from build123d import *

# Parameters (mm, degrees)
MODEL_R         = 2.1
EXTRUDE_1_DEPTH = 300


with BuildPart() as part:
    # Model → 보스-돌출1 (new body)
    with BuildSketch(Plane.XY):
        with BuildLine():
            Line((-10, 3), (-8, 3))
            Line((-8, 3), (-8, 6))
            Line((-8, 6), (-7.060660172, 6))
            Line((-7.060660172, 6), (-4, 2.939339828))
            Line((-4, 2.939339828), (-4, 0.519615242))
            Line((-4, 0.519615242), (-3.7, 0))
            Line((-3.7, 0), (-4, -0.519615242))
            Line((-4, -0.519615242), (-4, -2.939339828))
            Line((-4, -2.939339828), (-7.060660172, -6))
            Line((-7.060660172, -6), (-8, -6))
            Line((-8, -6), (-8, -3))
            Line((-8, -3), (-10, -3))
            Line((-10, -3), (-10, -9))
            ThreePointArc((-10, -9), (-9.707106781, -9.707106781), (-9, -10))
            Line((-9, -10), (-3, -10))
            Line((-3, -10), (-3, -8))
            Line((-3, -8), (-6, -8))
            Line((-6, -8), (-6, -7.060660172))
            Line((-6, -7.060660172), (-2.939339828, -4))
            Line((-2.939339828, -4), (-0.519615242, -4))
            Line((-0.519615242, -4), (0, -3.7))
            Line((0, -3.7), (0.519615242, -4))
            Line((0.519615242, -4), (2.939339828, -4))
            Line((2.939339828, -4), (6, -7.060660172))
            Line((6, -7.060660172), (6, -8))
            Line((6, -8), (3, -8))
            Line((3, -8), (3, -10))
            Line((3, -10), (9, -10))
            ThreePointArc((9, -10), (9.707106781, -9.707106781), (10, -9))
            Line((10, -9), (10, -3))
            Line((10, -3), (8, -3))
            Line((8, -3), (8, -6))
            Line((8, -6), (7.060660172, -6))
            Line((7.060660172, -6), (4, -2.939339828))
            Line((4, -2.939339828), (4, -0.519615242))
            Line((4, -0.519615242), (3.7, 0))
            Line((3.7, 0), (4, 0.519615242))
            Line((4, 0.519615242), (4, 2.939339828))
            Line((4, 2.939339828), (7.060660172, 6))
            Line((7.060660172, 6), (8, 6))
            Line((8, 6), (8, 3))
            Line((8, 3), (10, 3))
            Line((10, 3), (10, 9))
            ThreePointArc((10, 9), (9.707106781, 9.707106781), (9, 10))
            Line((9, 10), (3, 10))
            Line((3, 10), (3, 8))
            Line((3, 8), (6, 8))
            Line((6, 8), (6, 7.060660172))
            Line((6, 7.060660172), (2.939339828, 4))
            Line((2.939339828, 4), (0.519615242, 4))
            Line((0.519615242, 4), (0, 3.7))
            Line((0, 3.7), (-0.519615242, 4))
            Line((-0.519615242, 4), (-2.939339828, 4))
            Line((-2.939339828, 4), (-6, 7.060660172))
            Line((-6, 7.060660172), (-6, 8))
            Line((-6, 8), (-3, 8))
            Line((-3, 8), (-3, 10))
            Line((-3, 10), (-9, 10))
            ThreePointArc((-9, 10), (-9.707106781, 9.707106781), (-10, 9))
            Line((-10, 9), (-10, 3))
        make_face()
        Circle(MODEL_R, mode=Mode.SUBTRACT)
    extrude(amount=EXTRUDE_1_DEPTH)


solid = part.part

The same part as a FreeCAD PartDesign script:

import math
import FreeCAD as App
import Part
import Sketcher
Q = App.Units.Quantity

doc = App.newDocument("Part")
body = doc.addObject("PartDesign::Body", "Body")

# Sketch on XY plane
sketch1 = body.newObject("Sketcher::SketchObject", "Sketch")
sketch1.AttachmentSupport = (doc.getObject("XY_Plane"), [""])
sketch1.MapMode = "FlatFace"
sketch1.addGeometry(Part.LineSegment(App.Vector(-10, 3, 0), App.Vector(-8, 3, 0)), False)
sketch1.addGeometry(Part.LineSegment(App.Vector(-8, 3, 0), App.Vector(-8, 6, 0)), False)
sketch1.addGeometry(Part.LineSegment(App.Vector(-8, 6, 0), App.Vector(-7.1, 6, 0)), False)
sketch1.addGeometry(Part.LineSegment(App.Vector(-7.1, 6, 0), App.Vector(-4, 2.9, 0)), False)
sketch1.addGeometry(Part.LineSegment(App.Vector(-4, 2.9, 0), App.Vector(-4, 0.5, 0)), False)
sketch1.addGeometry(Part.LineSegment(App.Vector(-4, 0.5, 0), App.Vector(-3.7, 0, 0)), False)
sketch1.addGeometry(Part.LineSegment(App.Vector(-3.7, 0, 0), App.Vector(-4, -0.5, 0)), False)
sketch1.addGeometry(Part.LineSegment(App.Vector(-4, -0.5, 0), App.Vector(-4, -2.9, 0)), False)
sketch1.addGeometry(Part.LineSegment(App.Vector(-4, -2.9, 0), App.Vector(-7.1, -6, 0)), False)
sketch1.addGeometry(Part.LineSegment(App.Vector(-7.1, -6, 0), App.Vector(-8, -6, 0)), False)
sketch1.addGeometry(Part.LineSegment(App.Vector(-8, -6, 0), App.Vector(-8, -3, 0)), False)
sketch1.addGeometry(Part.LineSegment(App.Vector(-8, -3, 0), App.Vector(-10, -3, 0)), False)
sketch1.addGeometry(Part.LineSegment(App.Vector(-10, -3, 0), App.Vector(-10, -9, 0)), False)
sketch1.addGeometry(Part.ArcOfCircle(Part.Circle(App.Vector(-9, -9, 0), App.Vector(0, 0, 1), 1), math.radians(-180), math.radians(-90)), False)
sketch1.addGeometry(Part.LineSegment(App.Vector(-9, -10, 0), App.Vector(-3, -10, 0)), False)
sketch1.addGeometry(Part.LineSegment(App.Vector(-3, -10, 0), App.Vector(-3, -8, 0)), False)
sketch1.addGeometry(Part.LineSegment(App.Vector(-3, -8, 0), App.Vector(-6, -8, 0)), False)
sketch1.addGeometry(Part.LineSegment(App.Vector(-6, -8, 0), App.Vector(-6, -7.1, 0)), False)
sketch1.addGeometry(Part.LineSegment(App.Vector(-6, -7.1, 0), App.Vector(-2.9, -4, 0)), False)
sketch1.addGeometry(Part.LineSegment(App.Vector(-2.9, -4, 0), App.Vector(-0.5, -4, 0)), False)
sketch1.addGeometry(Part.LineSegment(App.Vector(-0.5, -4, 0), App.Vector(0, -3.7, 0)), False)
sketch1.addGeometry(Part.LineSegment(App.Vector(0, -3.7, 0), App.Vector(0.5, -4, 0)), False)
sketch1.addGeometry(Part.LineSegment(App.Vector(0.5, -4, 0), App.Vector(2.9, -4, 0)), False)
sketch1.addGeometry(Part.LineSegment(App.Vector(2.9, -4, 0), App.Vector(6, -7.1, 0)), False)
sketch1.addGeometry(Part.LineSegment(App.Vector(6, -7.1, 0), App.Vector(6, -8, 0)), False)
sketch1.addGeometry(Part.LineSegment(App.Vector(6, -8, 0), App.Vector(3, -8, 0)), False)
sketch1.addGeometry(Part.LineSegment(App.Vector(3, -8, 0), App.Vector(3, -10, 0)), False)
sketch1.addGeometry(Part.LineSegment(App.Vector(3, -10, 0), App.Vector(9, -10, 0)), False)
sketch1.addGeometry(Part.ArcOfCircle(Part.Circle(App.Vector(9, -9, 0), App.Vector(0, 0, 1), 1), math.radians(-90), math.radians(0)), False)
sketch1.addGeometry(Part.LineSegment(App.Vector(10, -9, 0), App.Vector(10, -3, 0)), False)
sketch1.addGeometry(Part.LineSegment(App.Vector(10, -3, 0), App.Vector(8, -3, 0)), False)
sketch1.addGeometry(Part.LineSegment(App.Vector(8, -3, 0), App.Vector(8, -6, 0)), False)
sketch1.addGeometry(Part.LineSegment(App.Vector(8, -6, 0), App.Vector(7.1, -6, 0)), False)
sketch1.addGeometry(Part.LineSegment(App.Vector(7.1, -6, 0), App.Vector(4, -2.9, 0)), False)
sketch1.addGeometry(Part.LineSegment(App.Vector(4, -2.9, 0), App.Vector(4, -0.5, 0)), False)
sketch1.addGeometry(Part.LineSegment(App.Vector(4, -0.5, 0), App.Vector(3.7, 0, 0)), False)
sketch1.addGeometry(Part.LineSegment(App.Vector(3.7, 0, 0), App.Vector(4, 0.5, 0)), False)
sketch1.addGeometry(Part.LineSegment(App.Vector(4, 0.5, 0), App.Vector(4, 2.9, 0)), False)
sketch1.addGeometry(Part.LineSegment(App.Vector(4, 2.9, 0), App.Vector(7.1, 6, 0)), False)
sketch1.addGeometry(Part.LineSegment(App.Vector(7.1, 6, 0), App.Vector(8, 6, 0)), False)
sketch1.addGeometry(Part.LineSegment(App.Vector(8, 6, 0), App.Vector(8, 3, 0)), False)
sketch1.addGeometry(Part.LineSegment(App.Vector(8, 3, 0), App.Vector(10, 3, 0)), False)
sketch1.addGeometry(Part.LineSegment(App.Vector(10, 3, 0), App.Vector(10, 9, 0)), False)
sketch1.addGeometry(Part.ArcOfCircle(Part.Circle(App.Vector(9, 9, 0), App.Vector(0, 0, 1), 1), math.radians(0), math.radians(90)), False)
sketch1.addGeometry(Part.LineSegment(App.Vector(9, 10, 0), App.Vector(3, 10, 0)), False)
sketch1.addGeometry(Part.LineSegment(App.Vector(3, 10, 0), App.Vector(3, 8, 0)), False)
sketch1.addGeometry(Part.LineSegment(App.Vector(3, 8, 0), App.Vector(6, 8, 0)), False)
sketch1.addGeometry(Part.LineSegment(App.Vector(6, 8, 0), App.Vector(6, 7.1, 0)), False)
sketch1.addGeometry(Part.LineSegment(App.Vector(6, 7.1, 0), App.Vector(2.9, 4, 0)), False)
sketch1.addGeometry(Part.LineSegment(App.Vector(2.9, 4, 0), App.Vector(0.5, 4, 0)), False)
sketch1.addGeometry(Part.LineSegment(App.Vector(0.5, 4, 0), App.Vector(0, 3.7, 0)), False)
sketch1.addGeometry(Part.LineSegment(App.Vector(0, 3.7, 0), App.Vector(-0.5, 4, 0)), False)
sketch1.addGeometry(Part.LineSegment(App.Vector(-0.5, 4, 0), App.Vector(-2.9, 4, 0)), False)
sketch1.addGeometry(Part.LineSegment(App.Vector(-2.9, 4, 0), App.Vector(-6, 7.1, 0)), False)
sketch1.addGeometry(Part.LineSegment(App.Vector(-6, 7.1, 0), App.Vector(-6, 8, 0)), False)
sketch1.addGeometry(Part.LineSegment(App.Vector(-6, 8, 0), App.Vector(-3, 8, 0)), False)
sketch1.addGeometry(Part.LineSegment(App.Vector(-3, 8, 0), App.Vector(-3, 10, 0)), False)
sketch1.addGeometry(Part.LineSegment(App.Vector(-3, 10, 0), App.Vector(-9, 10, 0)), False)
sketch1.addGeometry(Part.ArcOfCircle(Part.Circle(App.Vector(-9, 9, 0), App.Vector(0, 0, 1), 1), math.radians(90), math.radians(180)), False)
sketch1.addGeometry(Part.LineSegment(App.Vector(-10, 9, 0), App.Vector(-10, 3, 0)), False)
sketch1.addGeometry(Part.Circle(App.Vector(0, 0, 0), App.Vector(0, 0, 1), 2.1), False)
sketch1.addConstraint(Sketcher.Constraint("Coincident", 0, 2, 1, 1))
sketch1.addConstraint(Sketcher.Constraint("Coincident", 1, 2, 2, 1))
sketch1.addConstraint(Sketcher.Constraint("Coincident", 2, 2, 3, 1))
sketch1.addConstraint(Sketcher.Constraint("Coincident", 3, 2, 4, 1))
sketch1.addConstraint(Sketcher.Constraint("Coincident", 4, 2, 5, 1))
sketch1.addConstraint(Sketcher.Constraint("Coincident", 5, 2, 6, 1))
sketch1.addConstraint(Sketcher.Constraint("Coincident", 6, 2, 7, 1))
sketch1.addConstraint(Sketcher.Constraint("Coincident", 7, 2, 8, 1))
sketch1.addConstraint(Sketcher.Constraint("Coincident", 8, 2, 9, 1))
sketch1.addConstraint(Sketcher.Constraint("Coincident", 9, 2, 10, 1))
sketch1.addConstraint(Sketcher.Constraint("Coincident", 10, 2, 11, 1))
sketch1.addConstraint(Sketcher.Constraint("Coincident", 11, 2, 12, 1))
sketch1.addConstraint(Sketcher.Constraint("Tangent", 12, 2, 13, 1))
sketch1.addConstraint(Sketcher.Constraint("Tangent", 13, 2, 14, 1))
sketch1.addConstraint(Sketcher.Constraint("Coincident", 14, 2, 15, 1))
sketch1.addConstraint(Sketcher.Constraint("Coincident", 15, 2, 16, 1))
sketch1.addConstraint(Sketcher.Constraint("Coincident", 16, 2, 17, 1))
sketch1.addConstraint(Sketcher.Constraint("Coincident", 17, 2, 18, 1))
sketch1.addConstraint(Sketcher.Constraint("Coincident", 18, 2, 19, 1))
sketch1.addConstraint(Sketcher.Constraint("Coincident", 19, 2, 20, 1))
sketch1.addConstraint(Sketcher.Constraint("Coincident", 20, 2, 21, 1))
sketch1.addConstraint(Sketcher.Constraint("Coincident", 21, 2, 22, 1))
sketch1.addConstraint(Sketcher.Constraint("Coincident", 22, 2, 23, 1))
sketch1.addConstraint(Sketcher.Constraint("Coincident", 23, 2, 24, 1))
sketch1.addConstraint(Sketcher.Constraint("Coincident", 24, 2, 25, 1))
sketch1.addConstraint(Sketcher.Constraint("Coincident", 25, 2, 26, 1))
sketch1.addConstraint(Sketcher.Constraint("Coincident", 26, 2, 27, 1))
sketch1.addConstraint(Sketcher.Constraint("Tangent", 27, 2, 28, 1))
sketch1.addConstraint(Sketcher.Constraint("Tangent", 28, 2, 29, 1))
sketch1.addConstraint(Sketcher.Constraint("Coincident", 29, 2, 30, 1))
sketch1.addConstraint(Sketcher.Constraint("Coincident", 30, 2, 31, 1))
sketch1.addConstraint(Sketcher.Constraint("Coincident", 31, 2, 32, 1))
sketch1.addConstraint(Sketcher.Constraint("Coincident", 32, 2, 33, 1))
sketch1.addConstraint(Sketcher.Constraint("Coincident", 33, 2, 34, 1))
sketch1.addConstraint(Sketcher.Constraint("Coincident", 34, 2, 35, 1))
sketch1.addConstraint(Sketcher.Constraint("Coincident", 35, 2, 36, 1))
sketch1.addConstraint(Sketcher.Constraint("Coincident", 36, 2, 37, 1))
sketch1.addConstraint(Sketcher.Constraint("Coincident", 37, 2, 38, 1))
sketch1.addConstraint(Sketcher.Constraint("Coincident", 38, 2, 39, 1))
sketch1.addConstraint(Sketcher.Constraint("Coincident", 39, 2, 40, 1))
sketch1.addConstraint(Sketcher.Constraint("Coincident", 40, 2, 41, 1))
sketch1.addConstraint(Sketcher.Constraint("Coincident", 41, 2, 42, 1))
sketch1.addConstraint(Sketcher.Constraint("Tangent", 42, 2, 43, 1))
sketch1.addConstraint(Sketcher.Constraint("Tangent", 43, 2, 44, 1))
sketch1.addConstraint(Sketcher.Constraint("Coincident", 44, 2, 45, 1))
sketch1.addConstraint(Sketcher.Constraint("Coincident", 45, 2, 46, 1))
sketch1.addConstraint(Sketcher.Constraint("Coincident", 46, 2, 47, 1))
sketch1.addConstraint(Sketcher.Constraint("Coincident", 47, 2, 48, 1))
sketch1.addConstraint(Sketcher.Constraint("Coincident", 48, 2, 49, 1))
sketch1.addConstraint(Sketcher.Constraint("Coincident", 49, 2, 50, 1))
sketch1.addConstraint(Sketcher.Constraint("Coincident", 50, 2, 51, 1))
sketch1.addConstraint(Sketcher.Constraint("Coincident", 51, 2, 52, 1))
sketch1.addConstraint(Sketcher.Constraint("Coincident", 52, 2, 53, 1))
sketch1.addConstraint(Sketcher.Constraint("Coincident", 53, 2, 54, 1))
sketch1.addConstraint(Sketcher.Constraint("Coincident", 54, 2, 55, 1))
sketch1.addConstraint(Sketcher.Constraint("Coincident", 55, 2, 56, 1))
sketch1.addConstraint(Sketcher.Constraint("Coincident", 56, 2, 57, 1))
sketch1.addConstraint(Sketcher.Constraint("Tangent", 57, 2, 58, 1))
sketch1.addConstraint(Sketcher.Constraint("Tangent", 58, 2, 59, 1))
sketch1.addConstraint(Sketcher.Constraint("Coincident", 59, 2, 0, 1))
sketch1.addConstraint(Sketcher.Constraint("Horizontal", 0))
sketch1.addConstraint(Sketcher.Constraint("Vertical", 1))
sketch1.addConstraint(Sketcher.Constraint("Horizontal", 2))
sketch1.addConstraint(Sketcher.Constraint("Vertical", 4))
sketch1.addConstraint(Sketcher.Constraint("Vertical", 7))
sketch1.addConstraint(Sketcher.Constraint("Horizontal", 9))
sketch1.addConstraint(Sketcher.Constraint("Vertical", 10))
sketch1.addConstraint(Sketcher.Constraint("Horizontal", 11))
sketch1.addConstraint(Sketcher.Constraint("Vertical", 12))
sketch1.addConstraint(Sketcher.Constraint("Horizontal", 14))
sketch1.addConstraint(Sketcher.Constraint("Vertical", 15))
sketch1.addConstraint(Sketcher.Constraint("Horizontal", 16))
sketch1.addConstraint(Sketcher.Constraint("Vertical", 17))
sketch1.addConstraint(Sketcher.Constraint("Horizontal", 19))
sketch1.addConstraint(Sketcher.Constraint("Horizontal", 22))
sketch1.addConstraint(Sketcher.Constraint("Vertical", 24))
sketch1.addConstraint(Sketcher.Constraint("Horizontal", 25))
sketch1.addConstraint(Sketcher.Constraint("Vertical", 26))
sketch1.addConstraint(Sketcher.Constraint("Horizontal", 27))
sketch1.addConstraint(Sketcher.Constraint("Vertical", 29))
sketch1.addConstraint(Sketcher.Constraint("Horizontal", 30))
sketch1.addConstraint(Sketcher.Constraint("Vertical", 31))
sketch1.addConstraint(Sketcher.Constraint("Horizontal", 32))
sketch1.addConstraint(Sketcher.Constraint("Vertical", 34))
sketch1.addConstraint(Sketcher.Constraint("Vertical", 37))
sketch1.addConstraint(Sketcher.Constraint("Horizontal", 39))
sketch1.addConstraint(Sketcher.Constraint("Vertical", 40))
sketch1.addConstraint(Sketcher.Constraint("Horizontal", 41))
sketch1.addConstraint(Sketcher.Constraint("Vertical", 42))
sketch1.addConstraint(Sketcher.Constraint("Horizontal", 44))
sketch1.addConstraint(Sketcher.Constraint("Vertical", 45))
sketch1.addConstraint(Sketcher.Constraint("Horizontal", 46))
sketch1.addConstraint(Sketcher.Constraint("Vertical", 47))
sketch1.addConstraint(Sketcher.Constraint("Horizontal", 49))
sketch1.addConstraint(Sketcher.Constraint("Horizontal", 52))
sketch1.addConstraint(Sketcher.Constraint("Vertical", 54))
sketch1.addConstraint(Sketcher.Constraint("Horizontal", 55))
sketch1.addConstraint(Sketcher.Constraint("Vertical", 56))
sketch1.addConstraint(Sketcher.Constraint("Horizontal", 57))
sketch1.addConstraint(Sketcher.Constraint("Vertical", 59))
sketch1.addConstraint(Sketcher.Constraint("Coincident", 60, 3, -1, 1))
sketch1.addConstraint(Sketcher.Constraint("Equal", 13, 28))
sketch1.addConstraint(Sketcher.Constraint("Equal", 28, 43))
sketch1.addConstraint(Sketcher.Constraint("Equal", 43, 58))
sketch1.addConstraint(Sketcher.Constraint("Symmetric", 13, 3, 43, 3, -1, 1))
sketch1.addConstraint(Sketcher.Constraint("Symmetric", 28, 3, 58, 3, -1, 1))
sketch1.addConstraint(Sketcher.Constraint("Symmetric", 0, 2, 30, 2, -1, 1))
sketch1.addConstraint(Sketcher.Constraint("Symmetric", 2, 2, 32, 2, -1, 1))
sketch1.addConstraint(Sketcher.Constraint("Symmetric", 3, 2, 33, 2, -1, 1))
sketch1.addConstraint(Sketcher.Constraint("Symmetric", 5, 2, 35, 2, -1, 1))
sketch1.addConstraint(Sketcher.Constraint("Symmetric", 6, 2, 36, 2, -1, 1))
sketch1.addConstraint(Sketcher.Constraint("Symmetric", 8, 2, 38, 2, -1, 1))
sketch1.addConstraint(Sketcher.Constraint("Symmetric", 10, 2, 40, 2, -1, 1))
sketch1.addConstraint(Sketcher.Constraint("Symmetric", 15, 2, 45, 2, -1, 1))
sketch1.addConstraint(Sketcher.Constraint("Symmetric", 17, 2, 47, 2, -1, 1))
sketch1.addConstraint(Sketcher.Constraint("Symmetric", 18, 2, 48, 2, -1, 1))
sketch1.addConstraint(Sketcher.Constraint("Symmetric", 20, 2, 50, 2, -1, 1))
sketch1.addConstraint(Sketcher.Constraint("Symmetric", 21, 2, 51, 2, -1, 1))
sketch1.addConstraint(Sketcher.Constraint("Symmetric", 23, 2, 53, 2, -1, 1))
sketch1.addConstraint(Sketcher.Constraint("Symmetric", 25, 2, 55, 2, -1, 1))
sketch1.addConstraint(Sketcher.Constraint("Symmetric", 13, 3, 28, 3, -2))
sketch1.addConstraint(Sketcher.Constraint("Symmetric", 19, 2, 21, 2, -2))
sketch1.addConstraint(Sketcher.Constraint("Symmetric", 17, 2, 23, 2, -2))
sketch1.addConstraint(Sketcher.Constraint("Symmetric", 15, 2, 25, 2, -2))
sketch1.addConstraint(Sketcher.Constraint("Symmetric", 10, 2, 30, 2, -2))
sketch1.addConstraint(Sketcher.Constraint("Symmetric", 8, 2, 32, 2, -2))
sketch1.addConstraint(Sketcher.Constraint("Symmetric", 7, 2, 33, 2, -2))
sketch1.addConstraint(Sketcher.Constraint("PointOnObject", 5, 2, -1))
sketch1.addConstraint(Sketcher.Constraint("PointOnObject", 20, 2, -2))
sketch1.addConstraint(Sketcher.Constraint("Perpendicular", 3, 8))
sketch1.addConstraint(Sketcher.Constraint("Parallel", 8, 18))
sketch1.addConstraint(Sketcher.Constraint("Perpendicular", 5, 20))
sketch1.addConstraint(Sketcher.Constraint("Perpendicular", 6, 21))
sketch1.addConstraint(Sketcher.Constraint("Perpendicular", 18, 23))
sketch1.addConstraint(Sketcher.Constraint("Perpendicular", 20, 35))
sketch1.addConstraint(Sketcher.Constraint("Perpendicular", 33, 38))
sketch1.addConstraint(Sketcher.Constraint("Perpendicular", 35, 50))
sketch1.addConstraint(Sketcher.Constraint("Perpendicular", 48, 53))
sketch1.addConstraint(Sketcher.Constraint("Equal", 55, 1))
sketch1.addConstraint(Sketcher.Constraint("Equal", 52, 4))
sketch1.addConstraint(Sketcher.Constraint("Equal", 57, 12))
sketch1.addConstraint(Sketcher.Constraint("Equal", 41, 15))
sketch1.addConstraint(Sketcher.Constraint("Equal", 39, 17))
sketch1.addConstraint(Sketcher.Constraint("Equal", 8, 18))
sketch1.addConstraint(Sketcher.Constraint("Equal", 6, 20))
sketch1.addConstraint(Sketcher.Constraint("Radius", 13, 1.0))
sketch1.addConstraint(Sketcher.Constraint("Diameter", 60, 4.2))
sketch1.addConstraint(Sketcher.Constraint("DistanceX", 0, 1, 0, 2, 2.0))
sketch1.addConstraint(Sketcher.Constraint("DistanceX", 14, 1, 14, 2, 6.0))
sketch1.addConstraint(Sketcher.Constraint("DistanceX", 16, 2, 16, 1, 3.0))
sketch1.addConstraint(Sketcher.Constraint("Angle", 5, Q("-60 deg")))
sketch1.addConstraint(Sketcher.Constraint("DistanceX", 13, 3, -1, 1, 9.0))
sketch1.addConstraint(Sketcher.Constraint("DistanceX", 3, 2, -1, 1, 4.0))
sketch1.addConstraint(Sketcher.Constraint("Distance", 5, 0.6))
sketch1.addConstraint(Sketcher.Constraint("DistanceX", 2, 1, 2, 2, 0.93934))
pad1 = body.newObject("PartDesign::Pad", "Pad")
pad1.Profile = sketch1
pad1.Length = 300

doc.recompute()
